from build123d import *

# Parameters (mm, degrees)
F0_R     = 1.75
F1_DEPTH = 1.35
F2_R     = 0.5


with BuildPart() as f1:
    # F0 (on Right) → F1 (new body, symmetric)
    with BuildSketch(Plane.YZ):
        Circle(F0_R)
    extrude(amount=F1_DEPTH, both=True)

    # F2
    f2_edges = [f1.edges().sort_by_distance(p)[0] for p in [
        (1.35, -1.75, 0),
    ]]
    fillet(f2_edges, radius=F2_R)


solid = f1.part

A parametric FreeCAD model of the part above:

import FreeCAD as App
import Part
import Sketcher
from FreeCAD import Vector
Q = App.Units.Quantity


def edges_at(feature, points):
    """Names of the edges that pass closest to the given points."""
    edges = feature.Shape.Edges
    near = lambda p: min(range(len(edges)), key=lambda i: edges[i].distToShape(Part.Vertex(*p))[0])
    return sorted({f"Edge{near(p) + 1}" for p in points})

doc = App.newDocument("Part")
body = doc.addObject("PartDesign::Body", "Body")

sketch1 = body.newObject("Sketcher::SketchObject", "Sketch")
sketch1.AttachmentSupport = (doc.getObject("YZ_Plane"), [""])
sketch1.MapMode = "FlatFace"
sketch1.addGeometry(Part.Circle(Vector(0, 0, 0), Vector(0, 0, 1), 1.8), False)
sketch1.addConstraint([
    Sketcher.Constraint("Coincident", 0, 3, -1, 1),
    Sketcher.Constraint("Diameter", 0, Q("3.5 mm")),
])
pad1 = body.newObject("PartDesign::Pad", "Pad")
pad1.Profile = sketch1
pad1.Length = 2.7
pad1.Midplane = True
doc.recompute()

fillet = body.newObject("PartDesign::Fillet", "Fillet")
fillet.Base = (pad1, edges_at(pad1, [(1.35, -1.75, 0)]))
fillet.Radius = 0.5

doc.recompute()
